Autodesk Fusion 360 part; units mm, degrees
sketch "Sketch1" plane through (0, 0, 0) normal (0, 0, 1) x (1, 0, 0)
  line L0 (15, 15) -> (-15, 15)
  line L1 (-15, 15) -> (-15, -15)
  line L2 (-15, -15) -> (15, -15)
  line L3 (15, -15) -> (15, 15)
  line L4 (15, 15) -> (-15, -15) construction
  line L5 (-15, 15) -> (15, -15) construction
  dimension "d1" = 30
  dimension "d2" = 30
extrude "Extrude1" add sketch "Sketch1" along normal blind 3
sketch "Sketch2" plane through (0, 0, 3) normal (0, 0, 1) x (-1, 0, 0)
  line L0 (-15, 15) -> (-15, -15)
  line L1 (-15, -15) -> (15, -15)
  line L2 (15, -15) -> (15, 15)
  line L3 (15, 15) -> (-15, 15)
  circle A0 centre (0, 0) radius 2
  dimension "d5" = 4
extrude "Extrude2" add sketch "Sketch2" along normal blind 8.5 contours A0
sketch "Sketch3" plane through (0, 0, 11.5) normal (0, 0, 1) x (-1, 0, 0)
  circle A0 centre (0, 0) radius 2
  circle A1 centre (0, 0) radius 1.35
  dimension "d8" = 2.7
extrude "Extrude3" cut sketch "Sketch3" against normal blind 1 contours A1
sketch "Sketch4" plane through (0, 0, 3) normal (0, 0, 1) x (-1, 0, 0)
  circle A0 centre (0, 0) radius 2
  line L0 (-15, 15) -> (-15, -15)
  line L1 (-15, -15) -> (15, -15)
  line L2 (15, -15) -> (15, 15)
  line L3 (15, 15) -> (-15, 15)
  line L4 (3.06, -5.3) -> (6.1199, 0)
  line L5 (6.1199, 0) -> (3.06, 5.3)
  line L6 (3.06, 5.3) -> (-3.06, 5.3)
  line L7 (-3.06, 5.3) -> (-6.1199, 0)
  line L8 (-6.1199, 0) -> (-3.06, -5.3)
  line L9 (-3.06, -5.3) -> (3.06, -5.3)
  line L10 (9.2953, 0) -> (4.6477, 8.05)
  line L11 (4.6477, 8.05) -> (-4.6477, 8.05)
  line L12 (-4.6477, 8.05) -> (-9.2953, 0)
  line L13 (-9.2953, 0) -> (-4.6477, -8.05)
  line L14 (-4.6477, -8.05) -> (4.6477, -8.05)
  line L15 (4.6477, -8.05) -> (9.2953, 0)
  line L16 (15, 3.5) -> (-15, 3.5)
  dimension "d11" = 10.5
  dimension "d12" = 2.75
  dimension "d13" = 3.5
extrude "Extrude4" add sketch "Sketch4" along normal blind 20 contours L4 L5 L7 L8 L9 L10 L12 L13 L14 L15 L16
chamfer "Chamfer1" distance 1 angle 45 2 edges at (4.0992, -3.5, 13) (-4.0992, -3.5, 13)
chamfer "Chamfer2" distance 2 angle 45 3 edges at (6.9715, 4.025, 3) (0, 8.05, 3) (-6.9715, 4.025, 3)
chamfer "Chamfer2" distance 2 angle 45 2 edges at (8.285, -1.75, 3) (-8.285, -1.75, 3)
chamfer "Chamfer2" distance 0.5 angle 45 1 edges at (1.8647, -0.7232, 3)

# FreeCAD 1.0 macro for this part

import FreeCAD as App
import Part
import Sketcher
from FreeCAD import Vector
Q = App.Units.Quantity


def edges_at(feature, points):
    """Names of the edges that pass closest to the given points."""
    edges = feature.Shape.Edges
    near = lambda p: min(range(len(edges)), key=lambda i: edges[i].distToShape(Part.Vertex(*p))[0])
    return sorted({f"Edge{near(p) + 1}" for p in points})

doc = App.newDocument("Part")
body = doc.addObject("PartDesign::Body", "Body")

sketch1 = body.newObject("Sketcher::SketchObject", "Sketch")
sketch1.AttachmentSupport = (doc.getObject("XY_Plane"), [""])
sketch1.MapMode = "FlatFace"
sketch1.addGeometry([
    Part.LineSegment(Vector(15, -15, 0), Vector(15, 15, 0)),
    Part.LineSegment(Vector(15, 15, 0), Vector(-15, 15, 0)),
    Part.LineSegment(Vector(-15, 15, 0), Vector(-15, -15, 0)),
    Part.LineSegment(Vector(-15, -15, 0), Vector(15, -15, 0)),
], False)
sketch1.addConstraint([
    Sketcher.Constraint("Coincident", 0, 2, 1, 1),
    Sketcher.Constraint("Coincident", 1, 2, 2, 1),
    Sketcher.Constraint("Coincident", 2, 2, 3, 1),
    Sketcher.Constraint("Coincident", 3, 2, 0, 1),
    Sketcher.Constraint("Vertical", 0),
    Sketcher.Constraint("Horizontal", 1),
    Sketcher.Constraint("Vertical", 2),
    Sketcher.Constraint("Horizontal", 3),
    Sketcher.Constraint("Symmetric", 0, 2, 2, 2, -1, 1),
    Sketcher.Constraint("Equal", 3, 0),
    Sketcher.Constraint("DistanceX", 1, 2, 1, 1, Q("30 mm")),
])
pad1 = body.newObject("PartDesign::Pad", "Pad")
pad1.Profile = sketch1
pad1.Length = 3

sketch2 = body.newObject("Sketcher::SketchObject", "Sketch001")
sketch2.AttachmentSupport = (doc.getObject("XY_Plane"), [""])
sketch2.MapMode = "FlatFace"
sketch2.AttachmentOffset = App.Placement(Vector(0, 0, 3), App.Rotation())
sketch2.addGeometry(Part.Circle(Vector(0, 0, 0), Vector(0, 0, 1), 2), False)
sketch2.addConstraint([
    Sketcher.Constraint("Coincident", 0, 3, -1, 1),
    Sketcher.Constraint("Diameter", 0, Q("4 mm")),
])
pad2 = body.newObject("PartDesign::Pad", "Pad001")
pad2.Profile = sketch2
pad2.Length = 8.5

sketch3 = body.newObject("Sketcher::SketchObject", "Sketch002")
sketch3.AttachmentSupport = (doc.getObject("XY_Plane"), [""])
sketch3.MapMode = "FlatFace"
sketch3.AttachmentOffset = App.Placement(Vector(0, 0, 11.5), App.Rotation())
sketch3.addGeometry(Part.Circle(Vector(0, 0, 0), Vector(0, 0, 1), 1.35), False)
sketch3.addConstraint([
    Sketcher.Constraint("Coincident", 0, 3, -1, 1),
    Sketcher.Constraint("Diameter", 0, Q("2.7 mm")),
])
pocket1 = body.newObject("PartDesign::Pocket", "Pocket")
pocket1.Profile = sketch3
pocket1.Length = 1

sketch4 = body.newObject("Sketcher::SketchObject", "Sketch003")
sketch4.AttachmentSupport = (doc.getObject("XY_Plane"), [""])
sketch4.MapMode = "FlatFace"
sketch4.AttachmentOffset = App.Placement(Vector(0, 0, 3), App.Rotation())
sketch4.addGeometry([
    Part.LineSegment(Vector(4.099211, -3.5, 0), Vector(7.274604, -3.5, 0)),
    Part.LineSegment(Vector(7.274604, -3.5, 0), Vector(9.2953, 0, 0)),
    Part.LineSegment(Vector(9.2953, 0, 0), Vector(4.6477, 8.05, 0)),
    Part.LineSegment(Vector(4.6477, 8.05, 0), Vector(-4.6477, 8.05, 0)),
    Part.LineSegment(Vector(-4.6477, 8.05, 0), Vector(-9.2953, 0, 0)),
    Part.LineSegment(Vector(-9.2953, 0, 0), Vector(-7.274604, -3.5, 0)),
    Part.LineSegment(Vector(-7.274604, -3.5, 0), Vector(-4.099211, -3.5, 0)),
    Part.LineSegment(Vector(-4.099211, -3.5, 0), Vector(-6.1199, 0, 0)),
    Part.LineSegment(Vector(-6.1199, 0, 0), Vector(-3.06, 5.3, 0)),
    Part.LineSegment(Vector(-3.06, 5.3, 0), Vector(3.06, 5.3, 0)),
    Part.LineSegment(Vector(3.06, 5.3, 0), Vector(6.1199, 0, 0)),
    Part.LineSegment(Vector(6.1199, 0, 0), Vector(4.099211, -3.5, 0)),
], False)
sketch4.addConstraint([
    Sketcher.Constraint("Coincident", 0, 2, 1, 1),
    Sketcher.Constraint("Coincident", 1, 2, 2, 1),
    Sketcher.Constraint("Coincident", 2, 2, 3, 1),
    Sketcher.Constraint("Coincident", 3, 2, 4, 1),
    Sketcher.Constraint("Coincident", 4, 2, 5, 1),
    Sketcher.Constraint("Coincident", 5, 2, 6, 1),
    Sketcher.Constraint("Coincident", 6, 2, 7, 1),
    Sketcher.Constraint("Coincident", 7, 2, 8, 1),
    Sketcher.Constraint("Coincident", 8, 2, 9, 1),
    Sketcher.Constraint("Coincident", 9, 2, 10, 1),
    Sketcher.Constraint("Coincident", 10, 2, 11, 1),
    Sketcher.Constraint("Coincident", 11, 2, 0, 1),
    Sketcher.Constraint("Horizontal", 0),
    Sketcher.Constraint("Horizontal", 3),
    Sketcher.Constraint("Horizontal", 6),
    Sketcher.Constraint("Horizontal", 9),
    Sketcher.Constraint("Symmetric", 1, 2, 4, 2, -1, 1),
    Sketcher.Constraint("Symmetric", 7, 2, 10, 2, -1, 1),
    Sketcher.Constraint("Symmetric", 0, 2, 5, 2, -2),
    Sketcher.Constraint("PointOnObject", 1, 2, -1),
    Sketcher.Constraint("PointOnObject", 7, 2, -1),
    Sketcher.Constraint("Parallel", 1, 4),
    Sketcher.Constraint("Parallel", 2, 5),
    Sketcher.Constraint("Parallel", 5, 7),
    Sketcher.Constraint("Parallel", 4, 8),
    Sketcher.Constraint("Parallel", 7, 10),
    Sketcher.Constraint("Parallel", 8, 11),
    Sketcher.Constraint("DistanceY", 0, 2, -1, 1, Q("3.5 mm")),
    Sketcher.Constraint("Angle", 1, Q("60.0004 deg")),
    Sketcher.Constraint("DistanceY", 8, 2, 3, 2, Q("2.75 mm")),
    Sketcher.Constraint("DistanceX", 9, 1, 9, 2, Q("6.12 mm")),
    Sketcher.Constraint("DistanceY", -1, 1, 8, 2, Q("5.3 mm")),
    Sketcher.Constraint("DistanceX", 4, 2, 0, 2, Q("16.57 mm")),
])
pad3 = body.newObject("PartDesign::Pad", "Pad002")
pad3.Profile = sketch4
pad3.Length = 20
doc.recompute()

chamfer = body.newObject("PartDesign::Chamfer", "Chamfer")
chamfer.Base = (pad3, edges_at(pad3, [(4.099, -3.5, 13), (-4.099, -3.5, 13)]))
chamfer.Size = 1
doc.recompute()

chamfer2 = body.newObject("PartDesign::Chamfer", "Chamfer001")
chamfer2.Base = (chamfer, edges_at(chamfer, [(6.971, 4.025, 3), (0, 8.05, 3), (-6.971, 4.025, 3)]))
chamfer2.Size = 2
doc.recompute()

chamfer3 = body.newObject("PartDesign::Chamfer", "Chamfer002")
chamfer3.Base = (chamfer2, edges_at(chamfer2, [(8.285, -1.75, 3), (-8.285, -1.75, 3)]))
chamfer3.Size = 2
doc.recompute()

chamfer4 = body.newObject("PartDesign::Chamfer", "Chamfer003")
chamfer4.Base = (chamfer3, edges_at(chamfer3, [(1.865, -0.723, 3)]))
chamfer4.Size = 0.5

doc.recompute()
